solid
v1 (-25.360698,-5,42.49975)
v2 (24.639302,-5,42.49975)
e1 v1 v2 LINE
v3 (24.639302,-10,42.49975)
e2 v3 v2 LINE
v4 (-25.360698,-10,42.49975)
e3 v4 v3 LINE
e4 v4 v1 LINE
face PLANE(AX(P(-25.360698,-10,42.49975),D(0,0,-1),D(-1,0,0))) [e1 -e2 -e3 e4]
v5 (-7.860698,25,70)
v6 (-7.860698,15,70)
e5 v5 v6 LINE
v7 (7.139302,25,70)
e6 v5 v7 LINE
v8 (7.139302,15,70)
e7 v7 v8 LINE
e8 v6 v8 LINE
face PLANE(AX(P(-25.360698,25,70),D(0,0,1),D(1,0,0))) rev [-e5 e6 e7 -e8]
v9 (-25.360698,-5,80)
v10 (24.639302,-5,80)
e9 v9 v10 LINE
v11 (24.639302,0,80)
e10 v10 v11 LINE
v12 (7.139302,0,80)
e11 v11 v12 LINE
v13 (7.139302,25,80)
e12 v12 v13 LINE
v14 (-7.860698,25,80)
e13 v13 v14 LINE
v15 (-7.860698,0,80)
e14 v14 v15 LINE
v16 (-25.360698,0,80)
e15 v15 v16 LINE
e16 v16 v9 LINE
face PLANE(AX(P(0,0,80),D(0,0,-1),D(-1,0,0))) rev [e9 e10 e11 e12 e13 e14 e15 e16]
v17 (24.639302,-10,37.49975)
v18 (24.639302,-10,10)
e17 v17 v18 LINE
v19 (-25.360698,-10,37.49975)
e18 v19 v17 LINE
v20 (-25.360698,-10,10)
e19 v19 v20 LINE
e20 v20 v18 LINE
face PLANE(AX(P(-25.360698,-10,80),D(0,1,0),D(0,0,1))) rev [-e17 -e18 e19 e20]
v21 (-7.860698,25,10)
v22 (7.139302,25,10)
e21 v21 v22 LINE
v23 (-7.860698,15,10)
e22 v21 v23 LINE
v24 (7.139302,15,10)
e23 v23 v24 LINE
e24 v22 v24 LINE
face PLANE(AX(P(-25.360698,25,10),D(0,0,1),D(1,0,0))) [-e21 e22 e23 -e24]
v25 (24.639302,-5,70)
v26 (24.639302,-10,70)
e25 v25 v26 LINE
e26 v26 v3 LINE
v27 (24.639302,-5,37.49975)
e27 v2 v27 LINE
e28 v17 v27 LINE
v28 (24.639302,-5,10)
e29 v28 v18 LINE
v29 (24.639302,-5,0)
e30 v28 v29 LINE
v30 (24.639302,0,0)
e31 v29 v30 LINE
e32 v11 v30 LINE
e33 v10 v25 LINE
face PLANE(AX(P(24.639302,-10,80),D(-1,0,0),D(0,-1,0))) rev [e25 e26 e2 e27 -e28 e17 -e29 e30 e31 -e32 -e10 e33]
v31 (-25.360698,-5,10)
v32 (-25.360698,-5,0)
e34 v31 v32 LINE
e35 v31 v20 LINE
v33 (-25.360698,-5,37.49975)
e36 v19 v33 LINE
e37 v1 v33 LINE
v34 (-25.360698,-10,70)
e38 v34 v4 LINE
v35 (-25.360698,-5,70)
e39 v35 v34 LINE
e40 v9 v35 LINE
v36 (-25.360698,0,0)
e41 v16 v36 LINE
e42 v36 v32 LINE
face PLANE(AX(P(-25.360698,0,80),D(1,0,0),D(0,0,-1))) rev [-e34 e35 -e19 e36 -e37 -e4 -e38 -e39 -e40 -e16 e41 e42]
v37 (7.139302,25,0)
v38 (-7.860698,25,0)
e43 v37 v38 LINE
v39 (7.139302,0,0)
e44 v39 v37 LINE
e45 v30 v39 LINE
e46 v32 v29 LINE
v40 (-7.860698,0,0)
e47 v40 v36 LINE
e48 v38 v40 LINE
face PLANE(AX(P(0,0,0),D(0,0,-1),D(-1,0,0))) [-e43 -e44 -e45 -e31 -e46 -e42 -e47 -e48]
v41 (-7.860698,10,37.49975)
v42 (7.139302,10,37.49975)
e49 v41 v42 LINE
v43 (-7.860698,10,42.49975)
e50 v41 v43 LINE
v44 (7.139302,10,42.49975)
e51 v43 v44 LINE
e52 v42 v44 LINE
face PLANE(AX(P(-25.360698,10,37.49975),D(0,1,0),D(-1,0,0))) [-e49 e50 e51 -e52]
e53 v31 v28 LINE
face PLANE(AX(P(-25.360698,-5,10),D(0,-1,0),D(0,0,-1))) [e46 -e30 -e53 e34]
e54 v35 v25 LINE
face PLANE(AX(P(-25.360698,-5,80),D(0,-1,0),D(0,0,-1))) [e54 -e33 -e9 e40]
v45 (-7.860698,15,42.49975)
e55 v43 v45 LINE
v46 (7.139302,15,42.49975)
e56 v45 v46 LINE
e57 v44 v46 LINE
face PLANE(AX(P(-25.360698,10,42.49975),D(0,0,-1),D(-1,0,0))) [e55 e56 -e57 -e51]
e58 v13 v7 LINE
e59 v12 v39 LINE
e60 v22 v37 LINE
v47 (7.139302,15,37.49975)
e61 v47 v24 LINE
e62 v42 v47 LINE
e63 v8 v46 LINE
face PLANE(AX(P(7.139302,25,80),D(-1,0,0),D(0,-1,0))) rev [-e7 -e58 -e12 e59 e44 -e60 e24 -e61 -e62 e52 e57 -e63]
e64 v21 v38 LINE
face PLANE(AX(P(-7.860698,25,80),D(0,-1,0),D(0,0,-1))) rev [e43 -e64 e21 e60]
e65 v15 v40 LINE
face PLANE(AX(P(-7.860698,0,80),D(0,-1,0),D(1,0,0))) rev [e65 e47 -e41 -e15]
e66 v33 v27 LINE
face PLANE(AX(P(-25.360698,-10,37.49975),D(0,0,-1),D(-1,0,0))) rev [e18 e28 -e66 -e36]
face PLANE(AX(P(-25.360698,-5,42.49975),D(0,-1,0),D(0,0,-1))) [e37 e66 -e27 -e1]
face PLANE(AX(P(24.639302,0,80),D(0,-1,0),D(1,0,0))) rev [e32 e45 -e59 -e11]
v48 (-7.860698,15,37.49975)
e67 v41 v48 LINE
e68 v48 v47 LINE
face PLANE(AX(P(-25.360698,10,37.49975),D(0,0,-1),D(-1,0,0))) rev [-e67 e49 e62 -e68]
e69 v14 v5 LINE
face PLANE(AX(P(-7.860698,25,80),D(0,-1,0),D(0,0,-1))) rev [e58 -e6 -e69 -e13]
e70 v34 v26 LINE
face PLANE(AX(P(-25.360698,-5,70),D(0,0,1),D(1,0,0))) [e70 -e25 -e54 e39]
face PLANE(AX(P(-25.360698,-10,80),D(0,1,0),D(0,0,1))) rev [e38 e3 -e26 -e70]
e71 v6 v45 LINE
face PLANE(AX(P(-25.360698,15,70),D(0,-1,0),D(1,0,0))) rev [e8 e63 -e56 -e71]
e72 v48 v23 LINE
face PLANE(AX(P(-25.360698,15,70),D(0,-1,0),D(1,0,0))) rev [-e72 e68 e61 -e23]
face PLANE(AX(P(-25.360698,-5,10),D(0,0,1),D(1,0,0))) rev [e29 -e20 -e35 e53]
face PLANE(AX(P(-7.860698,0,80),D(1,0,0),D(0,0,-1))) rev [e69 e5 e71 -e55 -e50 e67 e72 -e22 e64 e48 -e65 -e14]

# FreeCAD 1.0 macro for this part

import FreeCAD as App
import Part
import Sketcher
from FreeCAD import Vector

doc = App.newDocument("Part")
body = doc.addObject("PartDesign::Body", "Body")

# Sketch on XY plane
sketch1 = body.newObject("Sketcher::SketchObject", "Sketch")
sketch1.AttachmentSupport = (doc.getObject("XY_Plane"), [""])
sketch1.MapMode = "FlatFace"
sketch1.addGeometry(Part.LineSegment(Vector(-8, 0, 0), Vector(-25, 0, 0)), False)
sketch1.addGeometry(Part.LineSegment(Vector(-25, 0, 0), Vector(-25, -10, 0)), False)
sketch1.addGeometry(Part.LineSegment(Vector(-25, -10, 0), Vector(25, -10, 0)), False)
sketch1.addGeometry(Part.LineSegment(Vector(25, -10, 0), Vector(25, 0, 0)), False)
sketch1.addGeometry(Part.LineSegment(Vector(25, 0, 0), Vector(7, 0, 0)), False)
sketch1.addGeometry(Part.LineSegment(Vector(7, 0, 0), Vector(7, 25, 0)), False)
sketch1.addGeometry(Part.LineSegment(Vector(7, 25, 0), Vector(-8, 25, 0)), False)
sketch1.addGeometry(Part.LineSegment(Vector(-8, 25, 0), Vector(-8, 0, 0)), False)
sketch1.addConstraint(Sketcher.Constraint("Coincident", 0, 2, 1, 1))
sketch1.addConstraint(Sketcher.Constraint("Coincident", 1, 2, 2, 1))
sketch1.addConstraint(Sketcher.Constraint("Coincident", 2, 2, 3, 1))
sketch1.addConstraint(Sketcher.Constraint("Coincident", 3, 2, 4, 1))
sketch1.addConstraint(Sketcher.Constraint("Coincident", 4, 2, 5, 1))
sketch1.addConstraint(Sketcher.Constraint("Coincident", 5, 2, 6, 1))
sketch1.addConstraint(Sketcher.Constraint("Coincident", 6, 2, 7, 1))
sketch1.addConstraint(Sketcher.Constraint("Coincident", 7, 2, 0, 1))
sketch1.addConstraint(Sketcher.Constraint("Horizontal", 0))
sketch1.addConstraint(Sketcher.Constraint("Vertical", 1))
sketch1.addConstraint(Sketcher.Constraint("Horizontal", 2))
sketch1.addConstraint(Sketcher.Constraint("Vertical", 3))
sketch1.addConstraint(Sketcher.Constraint("Horizontal", 4))
sketch1.addConstraint(Sketcher.Constraint("Vertical", 5))
sketch1.addConstraint(Sketcher.Constraint("Horizontal", 6))
sketch1.addConstraint(Sketcher.Constraint("Vertical", 7))
sketch1.addConstraint(Sketcher.Constraint("PointOnObject", 0, 2, -1))
sketch1.addConstraint(Sketcher.Constraint("PointOnObject", 3, 2, -1))
sketch1.addConstraint(Sketcher.Constraint("Equal", 0, 4))
sketch1.addConstraint(Sketcher.Constraint("DistanceX", 2, 1, 2, 2, 50.0))
sketch1.addConstraint(Sketcher.Constraint("DistanceX", 6, 2, 6, 1, 15.0))
sketch1.addConstraint(Sketcher.Constraint("DistanceY", 1, 2, 1, 1, 10.0))
sketch1.addConstraint(Sketcher.Constraint("DistanceY", 5, 1, 5, 2, 25.0))
sketch1.addConstraint(Sketcher.Constraint("DistanceX", 0, 2, -1, 1, 25.360698))
pad1 = body.newObject("PartDesign::Pad", "Pad")
pad1.Profile = sketch1
pad1.Length = 80

# Sketch on YZ plane
sketch2 = body.newObject("Sketcher::SketchObject", "Sketch001")
sketch2.AttachmentSupport = (doc.getObject("YZ_Plane"), [""])
sketch2.MapMode = "FlatFace"
sketch2.AttachmentOffset = App.Placement(Vector(0, 0, 7.139302), App.Rotation())
sketch2.addGeometry(Part.LineSegment(Vector(25, 70, 0), Vector(15, 70, 0)), False)
sketch2.addGeometry(Part.LineSegment(Vector(15, 70, 0), Vector(15, 10, 0)), False)
sketch2.addGeometry(Part.LineSegment(Vector(15, 10, 0), Vector(25, 10, 0)), False)
sketch2.addGeometry(Part.LineSegment(Vector(25, 10, 0), Vector(25, 70, 0)), False)
sketch2.addConstraint(Sketcher.Constraint("Coincident", 0, 2, 1, 1))
sketch2.addConstraint(Sketcher.Constraint("Coincident", 1, 2, 2, 1))
sketch2.addConstraint(Sketcher.Constraint("Coincident", 2, 2, 3, 1))
sketch2.addConstraint(Sketcher.Constraint("Coincident", 3, 2, 0, 1))
sketch2.addConstraint(Sketcher.Constraint("Horizontal", 0))
sketch2.addConstraint(Sketcher.Constraint("Vertical", 1))
sketch2.addConstraint(Sketcher.Constraint("Horizontal", 2))
sketch2.addConstraint(Sketcher.Constraint("Vertical", 3))
sketch2.addConstraint(Sketcher.Constraint("DistanceX", 0, 2, 0, 1, 10.0))
sketch2.addConstraint(Sketcher.Constraint("DistanceY", 1, 2, 1, 1, 60.0))
sketch2.addConstraint(Sketcher.Constraint("DistanceX", -1, 1, 0, 2, 15.0))
sketch2.addConstraint(Sketcher.Constraint("DistanceY", -1, 1, 0, 2, 70.0))
pocket1 = body.newObject("PartDesign::Pocket", "Pocket")
pocket1.Profile = sketch2
pocket1.Type = "ThroughAll"

# Sketch on YZ plane
sketch3 = body.newObject("Sketcher::SketchObject", "Sketch002")
sketch3.AttachmentSupport = (doc.getObject("YZ_Plane"), [""])
sketch3.MapMode = "FlatFace"
sketch3.AttachmentOffset = App.Placement(Vector(0, 0, 24.639302), App.Rotation())
sketch3.addGeometry(Part.LineSegment(Vector(-5, 80, 0), Vector(-10, 80, 0)), False)
sketch3.addGeometry(Part.LineSegment(Vector(-10, 80, 0), Vector(-10, 70, 0)), False)
sketch3.addGeometry(Part.LineSegment(Vector(-10, 70, 0), Vector(-5, 70, 0)), False)
sketch3.addGeometry(Part.LineSegment(Vector(-5, 70, 0), Vector(-5, 80, 0)), False)
sketch3.addConstraint(Sketcher.Constraint("Coincident", 0, 2, 1, 1))
sketch3.addConstraint(Sketcher.Constraint("Coincident", 1, 2, 2, 1))
sketch3.addConstraint(Sketcher.Constraint("Coincident", 2, 2, 3, 1))
sketch3.addConstraint(Sketcher.Constraint("Coincident", 3, 2, 0, 1))
sketch3.addConstraint(Sketcher.Constraint("Horizontal", 0))
sketch3.addConstraint(Sketcher.Constraint("Vertical", 1))
sketch3.addConstraint(Sketcher.Constraint("Horizontal", 2))
sketch3.addConstraint(Sketcher.Constraint("Vertical", 3))
sketch3.addConstraint(Sketcher.Constraint("DistanceX", 0, 2, 0, 1, 5.0))
sketch3.addConstraint(Sketcher.Constraint("DistanceY", 1, 2, 1, 1, 10.0))
sketch3.addConstraint(Sketcher.Constraint("DistanceX", 0, 2, -1, 1, 10.0))
sketch3.addConstraint(Sketcher.Constraint("DistanceY", -1, 1, 0, 2, 80.0))
pocket2 = body.newObject("PartDesign::Pocket", "Pocket001")
pocket2.Profile = sketch3
pocket2.Type = "ThroughAll"

# Sketch on YZ plane
sketch4 = body.newObject("Sketcher::SketchObject", "Sketch003")
sketch4.AttachmentSupport = (doc.getObject("YZ_Plane"), [""])
sketch4.MapMode = "FlatFace"
sketch4.AttachmentOffset = App.Placement(Vector(0, 0, 24.639302), App.Rotation())
sketch4.addGeometry(Part.LineSegment(Vector(-5, 10, 0), Vector(-10, 10, 0)), False)
sketch4.addGeometry(Part.LineSegment(Vector(-10, 10, 0), Vector(-10, 0, 0)), False)
sketch4.addGeometry(Part.LineSegment(Vector(-10, 0, 0), Vector(-5, 0, 0)), False)
sketch4.addGeometry(Part.LineSegment(Vector(-5, 0, 0), Vector(-5, 10, 0)), False)
sketch4.addConstraint(Sketcher.Constraint("Coincident", 0, 2, 1, 1))
sketch4.addConstraint(Sketcher.Constraint("Coincident", 1, 2, 2, 1))
sketch4.addConstraint(Sketcher.Constraint("Coincident", 2, 2, 3, 1))
sketch4.addConstraint(Sketcher.Constraint("Coincident", 3, 2, 0, 1))
sketch4.addConstraint(Sketcher.Constraint("Horizontal", 0))
sketch4.addConstraint(Sketcher.Constraint("Vertical", 1))
sketch4.addConstraint(Sketcher.Constraint("Horizontal", 2))
sketch4.addConstraint(Sketcher.Constraint("Vertical", 3))
sketch4.addConstraint(Sketcher.Constraint("PointOnObject", 1, 2, -1))
sketch4.addConstraint(Sketcher.Constraint("DistanceX", 0, 2, 0, 1, 5.0))
sketch4.addConstraint(Sketcher.Constraint("DistanceY", 1, 2, 1, 1, 10.0))
sketch4.addConstraint(Sketcher.Constraint("DistanceX", 0, 2, -1, 1, 10.0))
pocket3 = body.newObject("PartDesign::Pocket", "Pocket002")
pocket3.Profile = sketch4
pocket3.Type = "ThroughAll"

# Sketch on YZ plane
sketch5 = body.newObject("Sketcher::SketchObject", "Sketch004")
sketch5.AttachmentSupport = (doc.getObject("YZ_Plane"), [""])
sketch5.MapMode = "FlatFace"
sketch5.AttachmentOffset = App.Placement(Vector(0, 0, 24.639302), App.Rotation())
sketch5.addGeometry(Part.LineSegment(Vector(-5, 42, 0), Vector(-10, 42, 0)), False)
sketch5.addGeometry(Part.LineSegment(Vector(-10, 42, 0), Vector(-10, 37, 0)), False)
sketch5.addGeometry(Part.LineSegment(Vector(-10, 37, 0), Vector(-5, 37, 0)), False)
sketch5.addGeometry(Part.LineSegment(Vector(-5, 37, 0), Vector(-5, 42, 0)), False)
sketch5.addConstraint(Sketcher.Constraint("Coincident", 0, 2, 1, 1))
sketch5.addConstraint(Sketcher.Constraint("Coincident", 1, 2, 2, 1))
sketch5.addConstraint(Sketcher.Constraint("Coincident", 2, 2, 3, 1))
sketch5.addConstraint(Sketcher.Constraint("Coincident", 3, 2, 0, 1))
sketch5.addConstraint(Sketcher.Constraint("Horizontal", 0))
sketch5.addConstraint(Sketcher.Constraint("Vertical", 1))
sketch5.addConstraint(Sketcher.Constraint("Horizontal", 2))
sketch5.addConstraint(Sketcher.Constraint("Vertical", 3))
sketch5.addConstraint(Sketcher.Constraint("Equal", 2, 1))
sketch5.addConstraint(Sketcher.Constraint("DistanceX", 0, 2, 0, 1, 5.0))
sketch5.addConstraint(Sketcher.Constraint("DistanceX", 0, 2, -1, 1, 10.0))
sketch5.addConstraint(Sketcher.Constraint("DistanceY", -1, 1, 0, 2, 42.49975))
pocket4 = body.newObject("PartDesign::Pocket", "Pocket003")
pocket4.Profile = sketch5
pocket4.Type = "ThroughAll"

# Sketch on YZ plane
sketch6 = body.newObject("Sketcher::SketchObject", "Sketch005")
sketch6.AttachmentSupport = (doc.getObject("YZ_Plane"), [""])
sketch6.MapMode = "FlatFace"
sketch6.AttachmentOffset = App.Placement(Vector(0, 0, 7.139302), App.Rotation())
sketch6.addGeometry(Part.LineSegment(Vector(15, 42, 0), Vector(10, 42, 0)), False)
sketch6.addGeometry(Part.LineSegment(Vector(10, 42, 0), Vector(10, 37, 0)), False)
sketch6.addGeometry(Part.LineSegment(Vector(10, 37, 0), Vector(15, 37, 0)), False)
sketch6.addGeometry(Part.LineSegment(Vector(15, 37, 0), Vector(15, 42, 0)), False)
sketch6.addConstraint(Sketcher.Constraint("Coincident", 0, 2, 1, 1))
sketch6.addConstraint(Sketcher.Constraint("Coincident", 1, 2, 2, 1))
sketch6.addConstraint(Sketcher.Constraint("Coincident", 2, 2, 3, 1))
sketch6.addConstraint(Sketcher.Constraint("Coincident", 3, 2, 0, 1))
sketch6.addConstraint(Sketcher.Constraint("Horizontal", 0))
sketch6.addConstraint(Sketcher.Constraint("Vertical", 1))
sketch6.addConstraint(Sketcher.Constraint("Horizontal", 2))
sketch6.addConstraint(Sketcher.Constraint("Vertical", 3))
sketch6.addConstraint(Sketcher.Constraint("Equal", 2, 1))
sketch6.addConstraint(Sketcher.Constraint("DistanceX", 0, 2, 0, 1, 5.0))
sketch6.addConstraint(Sketcher.Constraint("DistanceX", -1, 1, 0, 2, 10.0))
sketch6.addConstraint(Sketcher.Constraint("DistanceY", -1, 1, 0, 2, 42.49975))
pocket5 = body.newObject("PartDesign::Pocket", "Pocket004")
pocket5.Profile = sketch6
pocket5.Type = "ThroughAll"

doc.recompute()
